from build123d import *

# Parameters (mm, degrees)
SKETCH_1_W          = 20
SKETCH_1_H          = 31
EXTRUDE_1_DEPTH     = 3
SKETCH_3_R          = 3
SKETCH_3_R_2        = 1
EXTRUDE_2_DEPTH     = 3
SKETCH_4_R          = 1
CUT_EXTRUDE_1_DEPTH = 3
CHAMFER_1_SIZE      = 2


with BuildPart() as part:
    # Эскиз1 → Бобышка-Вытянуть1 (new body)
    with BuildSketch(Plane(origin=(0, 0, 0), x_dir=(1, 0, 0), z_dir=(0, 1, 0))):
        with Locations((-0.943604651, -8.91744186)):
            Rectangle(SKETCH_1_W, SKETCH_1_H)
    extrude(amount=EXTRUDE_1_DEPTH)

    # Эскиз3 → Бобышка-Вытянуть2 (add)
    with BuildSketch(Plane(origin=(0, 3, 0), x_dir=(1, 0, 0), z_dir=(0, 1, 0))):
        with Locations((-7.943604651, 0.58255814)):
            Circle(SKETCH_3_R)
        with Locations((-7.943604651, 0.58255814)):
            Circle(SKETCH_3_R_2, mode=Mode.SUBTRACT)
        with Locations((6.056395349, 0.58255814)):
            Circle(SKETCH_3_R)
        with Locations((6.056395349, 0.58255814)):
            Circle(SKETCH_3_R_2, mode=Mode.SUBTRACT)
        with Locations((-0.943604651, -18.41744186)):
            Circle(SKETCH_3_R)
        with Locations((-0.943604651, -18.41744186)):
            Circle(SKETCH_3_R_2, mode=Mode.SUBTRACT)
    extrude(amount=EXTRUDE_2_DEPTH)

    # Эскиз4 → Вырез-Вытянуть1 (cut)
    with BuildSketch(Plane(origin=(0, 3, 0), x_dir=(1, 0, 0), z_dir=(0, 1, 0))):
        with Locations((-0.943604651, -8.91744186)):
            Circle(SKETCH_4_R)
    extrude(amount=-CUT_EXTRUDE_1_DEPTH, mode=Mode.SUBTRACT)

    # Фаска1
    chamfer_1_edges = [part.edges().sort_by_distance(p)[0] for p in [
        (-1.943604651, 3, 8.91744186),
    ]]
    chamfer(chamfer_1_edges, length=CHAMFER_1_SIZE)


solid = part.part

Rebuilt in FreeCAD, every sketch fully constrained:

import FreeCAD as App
import Part
import Sketcher


def edges_at(feature, points):
    """Names of the edges that pass closest to the given points."""
    edges = feature.Shape.Edges
    near = lambda p: min(range(len(edges)), key=lambda i: edges[i].distToShape(Part.Vertex(*p))[0])
    return sorted({f"Edge{near(p) + 1}" for p in points})


def add_polygon(sketch, points):
    """Adds a closed chain of lines whose ends are joined by coincident constraints."""
    first, n = sketch.GeometryCount, len(points)
    for a, b in zip(points, points[1:] + points[:1]):
        sketch.addGeometry(Part.LineSegment(App.Vector(*a, 0), App.Vector(*b, 0)), False)
    for i in range(n):
        sketch.addConstraint(Sketcher.Constraint("Coincident", first + i, 2, first + (i + 1) % n, 1))

doc = App.newDocument("Part")
body = doc.addObject("PartDesign::Body", "Body")

# Sketch on XZ plane
sketch1 = body.newObject("Sketcher::SketchObject", "Sketch")
sketch1.AttachmentSupport = (doc.getObject("XZ_Plane"), [""])
sketch1.MapMode = "FlatFace"
add_polygon(sketch1, [(-11, -7), (-11, 24), (9, 24), (9, -7)])  # lines 0-3
sketch1.addConstraint([
    Sketcher.Constraint("Vertical", 0),
    Sketcher.Constraint("Horizontal", 1),
    Sketcher.Constraint("Vertical", 2),
    Sketcher.Constraint("Horizontal", 3),
    Sketcher.Constraint("DistanceX", 1, 1, 1, 2, 20.0),
    Sketcher.Constraint("DistanceY", 0, 1, 0, 2, 31.0),
    Sketcher.Constraint("DistanceY", -1, 1, 0, 2, 24.417442),
    Sketcher.Constraint("DistanceX", 0, 2, -1, 1, 10.943605),
])
pad1 = body.newObject("PartDesign::Pad", "Pad")
pad1.Profile = sketch1
pad1.Length = 3
pad1.Reversed = True

# Sketch on XZ plane
sketch2 = body.newObject("Sketcher::SketchObject", "Sketch001")
sketch2.AttachmentSupport = (doc.getObject("XZ_Plane"), [""])
sketch2.MapMode = "FlatFace"
sketch2.AttachmentOffset = App.Placement(App.Vector(0, 0, -3), App.Rotation())
sketch2.addGeometry([
    Part.Circle(App.Vector(-7.9, -0.6, 0), App.Vector(0, 0, 1), 3),  # 0
    Part.Circle(App.Vector(-7.9, -0.6, 0), App.Vector(0, 0, 1), 1),  # 1
    Part.Circle(App.Vector(6.1, -0.6, 0), App.Vector(0, 0, 1), 3),  # 2
    Part.Circle(App.Vector(6.1, -0.6, 0), App.Vector(0, 0, 1), 1),  # 3
    Part.Circle(App.Vector(-0.9, 18.4, 0), App.Vector(0, 0, 1), 3),  # 4
    Part.Circle(App.Vector(-0.9, 18.4, 0), App.Vector(0, 0, 1), 1),  # 5
], False)
sketch2.addConstraint([
    Sketcher.Constraint("Coincident", 1, 3, 0, 3),
    Sketcher.Constraint("Coincident", 3, 3, 2, 3),
    Sketcher.Constraint("Coincident", 5, 3, 4, 3),
    Sketcher.Constraint("Equal", 0, 2),
    Sketcher.Constraint("Equal", 1, 3),
    Sketcher.Constraint("Equal", 2, 4),
    Sketcher.Constraint("Equal", 3, 5),
    Sketcher.Constraint("Horizontal", 1, 3, 2, 3),
    Sketcher.Constraint("Diameter", 0, 6.0),
    Sketcher.Constraint("Diameter", 1, 2.0),
    Sketcher.Constraint("DistanceX", 0, 3, 2, 3, 14.0),
    Sketcher.Constraint("DistanceX", 0, 3, 4, 3, 7.0),
    Sketcher.Constraint("DistanceY", 0, 3, 4, 3, 19.0),
    Sketcher.Constraint("DistanceY", 0, 3, -1, 1, 0.582558),
    Sketcher.Constraint("DistanceX", 0, 3, -1, 1, 7.943605),
])
pad2 = body.newObject("PartDesign::Pad", "Pad001")
pad2.Profile = sketch2
pad2.Length = 3
pad2.Reversed = True

# Sketch on XZ plane
sketch3 = body.newObject("Sketcher::SketchObject", "Sketch002")
sketch3.AttachmentSupport = (doc.getObject("XZ_Plane"), [""])
sketch3.MapMode = "FlatFace"
sketch3.AttachmentOffset = App.Placement(App.Vector(0, 0, -3), App.Rotation())
sketch3.addGeometry(Part.Circle(App.Vector(-0.9, 8.9, 0), App.Vector(0, 0, 1), 1), False)
sketch3.addConstraint([
    Sketcher.Constraint("Diameter", 0, 2.0),
    Sketcher.Constraint("DistanceY", -1, 1, 0, 3, 8.917442),
    Sketcher.Constraint("DistanceX", 0, 3, -1, 1, 0.943605),
])
pocket1 = body.newObject("PartDesign::Pocket", "Pocket")
pocket1.Profile = sketch3
pocket1.Length = 3
pocket1.Reversed = True
doc.recompute()

chamfer = body.newObject("PartDesign::Chamfer", "Chamfer")
chamfer.Base = (pocket1, edges_at(pocket1, [(-1.944, 3, 8.917)]))
chamfer.Size = 2

doc.recompute()
